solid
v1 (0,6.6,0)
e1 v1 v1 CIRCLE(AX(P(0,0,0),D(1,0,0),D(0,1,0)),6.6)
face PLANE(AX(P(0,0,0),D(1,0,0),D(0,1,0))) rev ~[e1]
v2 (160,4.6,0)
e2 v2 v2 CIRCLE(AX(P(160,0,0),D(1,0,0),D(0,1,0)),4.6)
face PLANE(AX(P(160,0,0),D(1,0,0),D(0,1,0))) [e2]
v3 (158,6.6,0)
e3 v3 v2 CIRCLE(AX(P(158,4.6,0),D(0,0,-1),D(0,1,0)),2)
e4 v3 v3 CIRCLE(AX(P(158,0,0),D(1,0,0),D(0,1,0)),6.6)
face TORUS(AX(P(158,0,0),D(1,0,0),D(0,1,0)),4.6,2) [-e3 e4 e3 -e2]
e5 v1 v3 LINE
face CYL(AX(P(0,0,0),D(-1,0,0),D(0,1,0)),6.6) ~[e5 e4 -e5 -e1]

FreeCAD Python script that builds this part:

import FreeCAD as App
import Part
import Sketcher

V = App.Vector


def edges_at(feature, points):
    """Names of the edges that pass closest to the given points."""
    edges = feature.Shape.Edges
    near = lambda p: min(range(len(edges)), key=lambda i: edges[i].distToShape(Part.Vertex(*p))[0])
    return sorted({f"Edge{near(p) + 1}" for p in points})

doc = App.newDocument("Part")
body = doc.addObject("PartDesign::Body", "Body")

# Sketch on YZ plane
sketch1 = body.newObject("Sketcher::SketchObject", "Sketch")
sketch1.AttachmentSupport = (doc.getObject("YZ_Plane"), [""])
sketch1.MapMode = "FlatFace"
sketch1.addGeometry(Part.Circle(V(0, 0, 0), V(0, 0, 1), 7), False)
sketch1.addConstraint([
    Sketcher.Constraint("Coincident", 0, 3, -1, 1),
    Sketcher.Constraint("Diameter", 0, 13.2),
])
pad1 = body.newObject("PartDesign::Pad", "Pad")
pad1.Profile = sketch1
pad1.Length = 160
doc.recompute()

fillet = body.newObject("PartDesign::Fillet", "Fillet")
fillet.Base = (pad1, edges_at(pad1, [(160, -6.6, 0)]))
fillet.Radius = 2

doc.recompute()
